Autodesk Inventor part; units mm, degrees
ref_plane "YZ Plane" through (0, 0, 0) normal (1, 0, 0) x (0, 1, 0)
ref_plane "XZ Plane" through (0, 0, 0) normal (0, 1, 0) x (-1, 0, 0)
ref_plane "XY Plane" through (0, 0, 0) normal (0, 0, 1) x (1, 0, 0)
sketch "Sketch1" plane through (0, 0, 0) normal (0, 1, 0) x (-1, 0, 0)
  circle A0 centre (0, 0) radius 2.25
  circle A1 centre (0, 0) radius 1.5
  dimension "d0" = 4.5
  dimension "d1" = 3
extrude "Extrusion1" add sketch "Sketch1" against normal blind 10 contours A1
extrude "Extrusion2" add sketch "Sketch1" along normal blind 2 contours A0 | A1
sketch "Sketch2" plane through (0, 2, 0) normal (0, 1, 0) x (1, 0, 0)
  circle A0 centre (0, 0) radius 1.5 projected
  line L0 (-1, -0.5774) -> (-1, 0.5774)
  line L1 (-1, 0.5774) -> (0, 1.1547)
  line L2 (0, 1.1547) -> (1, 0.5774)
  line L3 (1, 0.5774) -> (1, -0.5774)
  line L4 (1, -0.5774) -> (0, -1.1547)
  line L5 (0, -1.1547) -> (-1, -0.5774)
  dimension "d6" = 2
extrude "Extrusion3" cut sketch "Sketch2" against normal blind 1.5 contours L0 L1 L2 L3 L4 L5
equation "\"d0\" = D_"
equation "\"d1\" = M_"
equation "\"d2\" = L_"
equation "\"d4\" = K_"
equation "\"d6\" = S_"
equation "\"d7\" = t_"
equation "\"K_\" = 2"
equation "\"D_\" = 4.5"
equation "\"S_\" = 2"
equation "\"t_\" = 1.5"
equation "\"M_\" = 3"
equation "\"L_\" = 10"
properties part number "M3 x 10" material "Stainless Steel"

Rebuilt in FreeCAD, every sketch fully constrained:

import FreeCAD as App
import Part
import Sketcher

V = App.Vector
Q = App.Units.Quantity


def add_polygon(sketch, points):
    """Adds a closed chain of lines whose ends are joined by coincident constraints."""
    first, n = sketch.GeometryCount, len(points)
    for a, b in zip(points, points[1:] + points[:1]):
        sketch.addGeometry(Part.LineSegment(App.Vector(*a, 0), App.Vector(*b, 0)), False)
    for i in range(n):
        sketch.addConstraint(Sketcher.Constraint("Coincident", first + i, 2, first + (i + 1) % n, 1))

doc = App.newDocument("Part")
body = doc.addObject("PartDesign::Body", "Body")

# Sketch on XZ plane
sketch1 = body.newObject("Sketcher::SketchObject", "Sketch")
sketch1.AttachmentSupport = (doc.getObject("XZ_Plane"), [""])
sketch1.MapMode = "FlatFace"
sketch1.addGeometry(Part.Circle(V(0, 0, 0), V(0, 0, 1), 1.5), False)
sketch1.addConstraint(Sketcher.Constraint("Coincident", 0, 3, -1, 1))
sketch1.addConstraint(Sketcher.Constraint("Diameter", 0, Q("3 mm")))
pad1 = body.newObject("PartDesign::Pad", "Pad")
pad1.Profile = sketch1
pad1.Length = 10

# Sketch on XZ plane
sketch2 = body.newObject("Sketcher::SketchObject", "Sketch001")
sketch2.AttachmentSupport = (doc.getObject("XZ_Plane"), [""])
sketch2.MapMode = "FlatFace"
sketch2.addGeometry(Part.Circle(V(0, 0, 0), V(0, 0, 1), 2.25), False)
sketch2.addConstraint(Sketcher.Constraint("Coincident", 0, 3, -1, 1))
sketch2.addConstraint(Sketcher.Constraint("Diameter", 0, Q("4.5 mm")))
pad2 = body.newObject("PartDesign::Pad", "Pad001")
pad2.Profile = sketch2
pad2.Length = 2
pad2.Reversed = True

# Sketch on XZ plane
sketch3 = body.newObject("Sketcher::SketchObject", "Sketch002")
sketch3.AttachmentSupport = (doc.getObject("XZ_Plane"), [""])
sketch3.MapMode = "FlatFace"
sketch3.AttachmentOffset = App.Placement(V(0, 0, -2), App.Rotation())
add_polygon(sketch3, [(-1, -0.5774), (-1, 0.5774), (0, 1.1547), (1, 0.5774), (1, -0.5774), (0, -1.1547)])  # lines 0-5
sketch3.addConstraint(Sketcher.Constraint("Vertical", 0))
sketch3.addConstraint(Sketcher.Constraint("Vertical", 3))
sketch3.addConstraint(Sketcher.Constraint("Symmetric", 0, 2, 3, 2, -1, 1))
sketch3.addConstraint(Sketcher.Constraint("Symmetric", 1, 2, 4, 2, -1, 1))
sketch3.addConstraint(Sketcher.Constraint("PointOnObject", 1, 2, -2))
sketch3.addConstraint(Sketcher.Constraint("Parallel", 2, 5))
sketch3.addConstraint(Sketcher.Constraint("Horizontal", 0, 2, 2, 2))
sketch3.addConstraint(Sketcher.Constraint("DistanceX", 0, 2, 2, 2, Q("2 mm")))
sketch3.addConstraint(Sketcher.Constraint("DistanceY", 0, 1, 0, 2, Q("1.1548 mm")))
sketch3.addConstraint(Sketcher.Constraint("DistanceY", 3, 2, 1, 2, Q("1.732 mm")))
pocket1 = body.newObject("PartDesign::Pocket", "Pocket")
pocket1.Profile = sketch3
pocket1.Length = 1.5
pocket1.Reversed = True

doc.recompute()
